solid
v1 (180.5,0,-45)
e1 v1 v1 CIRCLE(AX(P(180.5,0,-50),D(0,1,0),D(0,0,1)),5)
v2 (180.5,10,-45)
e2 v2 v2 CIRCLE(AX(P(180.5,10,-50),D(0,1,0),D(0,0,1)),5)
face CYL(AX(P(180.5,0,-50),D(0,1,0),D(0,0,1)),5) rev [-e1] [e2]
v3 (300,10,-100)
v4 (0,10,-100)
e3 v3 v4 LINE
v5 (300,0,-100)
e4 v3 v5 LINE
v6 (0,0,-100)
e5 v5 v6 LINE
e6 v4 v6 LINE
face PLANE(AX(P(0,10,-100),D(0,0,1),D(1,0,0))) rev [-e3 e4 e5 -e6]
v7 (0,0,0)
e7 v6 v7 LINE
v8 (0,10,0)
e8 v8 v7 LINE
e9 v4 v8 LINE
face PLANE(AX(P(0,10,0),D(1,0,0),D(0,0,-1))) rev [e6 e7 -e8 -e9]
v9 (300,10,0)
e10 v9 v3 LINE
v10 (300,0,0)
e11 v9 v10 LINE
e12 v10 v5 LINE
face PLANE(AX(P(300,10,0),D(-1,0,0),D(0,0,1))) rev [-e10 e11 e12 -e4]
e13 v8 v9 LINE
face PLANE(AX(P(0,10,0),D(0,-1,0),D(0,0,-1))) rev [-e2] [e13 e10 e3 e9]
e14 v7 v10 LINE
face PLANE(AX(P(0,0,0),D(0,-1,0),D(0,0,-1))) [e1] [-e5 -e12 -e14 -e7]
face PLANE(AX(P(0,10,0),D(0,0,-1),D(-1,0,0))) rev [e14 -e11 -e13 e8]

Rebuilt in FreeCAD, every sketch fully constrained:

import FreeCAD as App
import Part
import Sketcher
from FreeCAD import Vector


def add_polygon(sketch, points):
    """Adds a closed chain of lines whose ends are joined by coincident constraints."""
    first, n = sketch.GeometryCount, len(points)
    for a, b in zip(points, points[1:] + points[:1]):
        sketch.addGeometry(Part.LineSegment(App.Vector(*a, 0), App.Vector(*b, 0)), False)
    for i in range(n):
        sketch.addConstraint(Sketcher.Constraint("Coincident", first + i, 2, first + (i + 1) % n, 1))

doc = App.newDocument("Part")
body = doc.addObject("PartDesign::Body", "Body")

# Sketch on XZ plane
sketch1 = doc.addObject("Sketcher::SketchObject", "Sketch")
body.addObject(sketch1)
sketch1.AttachmentSupport = (doc.XZ_Plane, [""])
sketch1.MapMode = "FlatFace"
add_polygon(sketch1, [(0, -100), (0, 0), (300, 0), (300, -100)])  # lines 0-3
sketch1.addConstraint([
    Sketcher.Constraint("Vertical", 0),
    Sketcher.Constraint("Horizontal", 1),
    Sketcher.Constraint("Vertical", 2),
    Sketcher.Constraint("Horizontal", 3),
    Sketcher.Constraint("Coincident", 0, 2, -1, 1),
    Sketcher.Constraint("DistanceX", 1, 1, 1, 2, 300.0),
    Sketcher.Constraint("DistanceY", 0, 1, 0, 2, 100.0),
])
pad1 = doc.addObject("PartDesign::Pad", "Pad")
body.addObject(pad1)
pad1.Profile = sketch1
pad1.Length = 10
pad1.Reversed = True

# Sketch on XZ plane
sketch2 = doc.addObject("Sketcher::SketchObject", "Sketch001")
body.addObject(sketch2)
sketch2.AttachmentSupport = (doc.XZ_Plane, [""])
sketch2.MapMode = "FlatFace"
sketch2.AttachmentOffset = App.Placement(Vector(0, 0, -10), App.Rotation())
sketch2.addGeometry(Part.Circle(Vector(180.5, -50, 0), Vector(0, 0, 1), 5), False)
sketch2.addConstraint([
    Sketcher.Constraint("Diameter", 0, 10.0),
    Sketcher.Constraint("DistanceY", 0, 3, -1, 1, 50.0),
    Sketcher.Constraint("DistanceX", -1, 1, 0, 3, 180.5),
])
pocket1 = doc.addObject("PartDesign::Pocket", "Pocket")
body.addObject(pocket1)
pocket1.Profile = sketch2
pocket1.Length = 10
pocket1.Reversed = True

doc.recompute()
